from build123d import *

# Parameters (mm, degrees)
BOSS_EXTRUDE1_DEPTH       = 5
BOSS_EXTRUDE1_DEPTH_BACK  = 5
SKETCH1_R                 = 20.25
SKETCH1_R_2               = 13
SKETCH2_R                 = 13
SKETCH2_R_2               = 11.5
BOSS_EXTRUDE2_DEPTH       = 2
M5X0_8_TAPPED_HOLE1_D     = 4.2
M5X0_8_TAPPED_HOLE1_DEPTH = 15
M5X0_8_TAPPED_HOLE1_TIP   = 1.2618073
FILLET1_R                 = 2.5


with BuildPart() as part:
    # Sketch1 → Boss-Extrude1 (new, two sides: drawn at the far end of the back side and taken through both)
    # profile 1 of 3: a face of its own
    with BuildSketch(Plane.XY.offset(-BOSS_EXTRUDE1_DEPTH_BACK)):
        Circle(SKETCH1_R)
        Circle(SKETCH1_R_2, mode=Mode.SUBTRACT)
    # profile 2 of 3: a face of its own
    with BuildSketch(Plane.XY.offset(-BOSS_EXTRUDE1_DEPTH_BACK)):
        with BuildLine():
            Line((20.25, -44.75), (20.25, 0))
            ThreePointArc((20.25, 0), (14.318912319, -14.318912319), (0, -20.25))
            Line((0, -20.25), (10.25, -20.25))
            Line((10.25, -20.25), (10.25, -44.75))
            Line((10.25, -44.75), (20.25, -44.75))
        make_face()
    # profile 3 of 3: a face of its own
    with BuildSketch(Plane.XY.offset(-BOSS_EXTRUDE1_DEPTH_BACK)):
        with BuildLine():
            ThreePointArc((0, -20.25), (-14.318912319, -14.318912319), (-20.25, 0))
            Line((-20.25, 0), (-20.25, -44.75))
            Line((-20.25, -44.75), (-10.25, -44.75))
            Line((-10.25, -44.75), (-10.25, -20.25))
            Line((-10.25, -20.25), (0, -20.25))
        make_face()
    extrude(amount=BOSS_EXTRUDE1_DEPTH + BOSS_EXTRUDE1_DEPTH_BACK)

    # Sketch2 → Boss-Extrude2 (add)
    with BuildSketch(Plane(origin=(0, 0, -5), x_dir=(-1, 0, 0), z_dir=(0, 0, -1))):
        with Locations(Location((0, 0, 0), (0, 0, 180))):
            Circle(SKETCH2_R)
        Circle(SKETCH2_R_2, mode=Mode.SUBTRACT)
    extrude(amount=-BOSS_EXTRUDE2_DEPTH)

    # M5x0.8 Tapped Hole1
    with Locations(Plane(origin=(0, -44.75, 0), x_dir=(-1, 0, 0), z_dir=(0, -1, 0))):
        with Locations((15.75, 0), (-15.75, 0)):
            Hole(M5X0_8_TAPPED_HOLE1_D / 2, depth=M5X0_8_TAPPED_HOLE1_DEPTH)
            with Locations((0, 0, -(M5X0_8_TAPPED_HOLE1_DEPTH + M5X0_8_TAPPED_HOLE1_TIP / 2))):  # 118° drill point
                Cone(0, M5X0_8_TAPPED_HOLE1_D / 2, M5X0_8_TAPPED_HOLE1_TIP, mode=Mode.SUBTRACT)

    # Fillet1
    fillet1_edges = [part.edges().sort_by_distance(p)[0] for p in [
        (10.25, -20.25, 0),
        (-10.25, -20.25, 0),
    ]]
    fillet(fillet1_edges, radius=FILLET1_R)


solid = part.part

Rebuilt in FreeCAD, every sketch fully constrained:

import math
import FreeCAD as App
import Part
import Sketcher
from FreeCAD import Vector
Q = App.Units.Quantity


def edges_at(feature, points):
    """Names of the edges that pass closest to the given points."""
    edges = feature.Shape.Edges
    near = lambda p: min(range(len(edges)), key=lambda i: edges[i].distToShape(Part.Vertex(*p))[0])
    return sorted({f"Edge{near(p) + 1}" for p in points})

doc = App.newDocument("Part")
body = doc.addObject("PartDesign::Body", "Body")

sketch1 = doc.addObject("Sketcher::SketchObject", "Sketch")
body.addObject(sketch1)
sketch1.AttachmentSupport = (doc.XY_Plane, [""])
sketch1.MapMode = "FlatFace"
sketch1.addGeometry(Part.ArcOfCircle(Part.Circle(Vector(0, 0, 0), Vector(0, 0, 1), 20), math.radians(0), math.radians(180)), False)
sketch1.addGeometry(Part.LineSegment(Vector(-20, 0, 0), Vector(-20, -45, 0)), False)
sketch1.addGeometry(Part.LineSegment(Vector(-20, -45, 0), Vector(-10, -45, 0)), False)
sketch1.addGeometry(Part.LineSegment(Vector(-10, -45, 0), Vector(-10, -20, 0)), False)
sketch1.addGeometry(Part.LineSegment(Vector(-10, -20, 0), Vector(10, -20, 0)), False)
sketch1.addGeometry(Part.LineSegment(Vector(10, -20, 0), Vector(10, -45, 0)), False)
sketch1.addGeometry(Part.LineSegment(Vector(10, -45, 0), Vector(20, -45, 0)), False)
sketch1.addGeometry(Part.LineSegment(Vector(20, -45, 0), Vector(20, 0, 0)), False)
sketch1.addGeometry(Part.Circle(Vector(0, 0, 0), Vector(0, 0, 1), 13), False)
sketch1.addConstraint(Sketcher.Constraint("Tangent", 0, 2, 1, 1))
sketch1.addConstraint(Sketcher.Constraint("Coincident", 1, 2, 2, 1))
sketch1.addConstraint(Sketcher.Constraint("Coincident", 2, 2, 3, 1))
sketch1.addConstraint(Sketcher.Constraint("Coincident", 3, 2, 4, 1))
sketch1.addConstraint(Sketcher.Constraint("Coincident", 4, 2, 5, 1))
sketch1.addConstraint(Sketcher.Constraint("Coincident", 5, 2, 6, 1))
sketch1.addConstraint(Sketcher.Constraint("Coincident", 6, 2, 7, 1))
sketch1.addConstraint(Sketcher.Constraint("Tangent", 7, 2, 0, 1))
sketch1.addConstraint(Sketcher.Constraint("Vertical", 1))
sketch1.addConstraint(Sketcher.Constraint("Horizontal", 2))
sketch1.addConstraint(Sketcher.Constraint("Vertical", 3))
sketch1.addConstraint(Sketcher.Constraint("Horizontal", 4))
sketch1.addConstraint(Sketcher.Constraint("Vertical", 5))
sketch1.addConstraint(Sketcher.Constraint("Horizontal", 6))
sketch1.addConstraint(Sketcher.Constraint("Vertical", 7))
sketch1.addConstraint(Sketcher.Constraint("Coincident", 0, 3, -1, 1))
sketch1.addConstraint(Sketcher.Constraint("Coincident", 8, 3, -1, 1))
sketch1.addConstraint(Sketcher.Constraint("Symmetric", 2, 2, 5, 2, -2))
sketch1.addConstraint(Sketcher.Constraint("Diameter", 8, Q("26 mm")))
sketch1.addConstraint(Sketcher.Constraint("DistanceX", 2, 1, 2, 2, Q("10 mm")))
sketch1.addConstraint(Sketcher.Constraint("Radius", 0, Q("20.25 mm")))
sketch1.addConstraint(Sketcher.Constraint("DistanceY", 3, 1, 3, 2, Q("24.5 mm")))
sketch1.addConstraint(Sketcher.Constraint("DistanceY", 1, 2, 1, 1, Q("44.75 mm")))
pad1 = doc.addObject("PartDesign::Pad", "Pad")
body.addObject(pad1)
pad1.Profile = sketch1
pad1.Type = "TwoLengths"
pad1.Length = 5
pad1.Length2 = 5

sketch2 = doc.addObject("Sketcher::SketchObject", "Sketch001")
body.addObject(sketch2)
sketch2.AttachmentSupport = (doc.XY_Plane, [""])
sketch2.MapMode = "FlatFace"
sketch2.AttachmentOffset = App.Placement(Vector(0, 0, -5), App.Rotation())
sketch2.addGeometry(Part.Circle(Vector(0, 0, 0), Vector(0, 0, 1), 13), False)
sketch2.addGeometry(Part.Circle(Vector(0, 0, 0), Vector(0, 0, 1), 12), False)
sketch2.addConstraint(Sketcher.Constraint("Coincident", 0, 3, -1, 1))
sketch2.addConstraint(Sketcher.Constraint("Coincident", 1, 3, -1, 1))
sketch2.addConstraint(Sketcher.Constraint("Diameter", 0, Q("26 mm")))
sketch2.addConstraint(Sketcher.Constraint("Diameter", 1, Q("23 mm")))
pad2 = doc.addObject("PartDesign::Pad", "Pad001")
body.addObject(pad2)
pad2.Profile = sketch2
pad2.Length = 2

sketch3 = doc.addObject("Sketcher::SketchObject", "Sketch002")
body.addObject(sketch3)
sketch3.AttachmentSupport = (doc.XZ_Plane, [""])
sketch3.MapMode = "FlatFace"
sketch3.AttachmentOffset = App.Placement(Vector(0, 0, 44.75), App.Rotation())
sketch3.addGeometry(Part.Circle(Vector(-15.8, 0, 0), Vector(0, 0, 1), 2.1), False)
sketch3.addGeometry(Part.Circle(Vector(15.8, 0, 0), Vector(0, 0, 1), 2.1), False)
sketch3.addConstraint(Sketcher.Constraint("Equal", 0, 1))
sketch3.addConstraint(Sketcher.Constraint("Symmetric", 0, 3, 1, 3, -1, 1))
sketch3.addConstraint(Sketcher.Constraint("PointOnObject", 0, 3, -1))
sketch3.addConstraint(Sketcher.Constraint("Diameter", 0, Q("4.2 mm")))
sketch3.addConstraint(Sketcher.Constraint("DistanceX", 0, 3, 1, 3, Q("31.5 mm")))
doc.recompute()
hole = doc.addObject("PartDesign::Hole", "Hole")
body.addObject(hole)
hole.Profile = sketch3
hole.ThreadType = "None"
hole.Diameter = 4.2
hole.DepthType = "Dimension"
hole.Depth = 15
hole.DrillPoint = "Angled"
hole.DrillPointAngle = 118
doc.recompute()

fillet = doc.addObject("PartDesign::Fillet", "Fillet")
body.addObject(fillet)
fillet.Base = (hole, edges_at(hole, [(10.25, -20.25, 0), (-10.25, -20.25, 0)]))
fillet.Radius = 2.5

doc.recompute()
